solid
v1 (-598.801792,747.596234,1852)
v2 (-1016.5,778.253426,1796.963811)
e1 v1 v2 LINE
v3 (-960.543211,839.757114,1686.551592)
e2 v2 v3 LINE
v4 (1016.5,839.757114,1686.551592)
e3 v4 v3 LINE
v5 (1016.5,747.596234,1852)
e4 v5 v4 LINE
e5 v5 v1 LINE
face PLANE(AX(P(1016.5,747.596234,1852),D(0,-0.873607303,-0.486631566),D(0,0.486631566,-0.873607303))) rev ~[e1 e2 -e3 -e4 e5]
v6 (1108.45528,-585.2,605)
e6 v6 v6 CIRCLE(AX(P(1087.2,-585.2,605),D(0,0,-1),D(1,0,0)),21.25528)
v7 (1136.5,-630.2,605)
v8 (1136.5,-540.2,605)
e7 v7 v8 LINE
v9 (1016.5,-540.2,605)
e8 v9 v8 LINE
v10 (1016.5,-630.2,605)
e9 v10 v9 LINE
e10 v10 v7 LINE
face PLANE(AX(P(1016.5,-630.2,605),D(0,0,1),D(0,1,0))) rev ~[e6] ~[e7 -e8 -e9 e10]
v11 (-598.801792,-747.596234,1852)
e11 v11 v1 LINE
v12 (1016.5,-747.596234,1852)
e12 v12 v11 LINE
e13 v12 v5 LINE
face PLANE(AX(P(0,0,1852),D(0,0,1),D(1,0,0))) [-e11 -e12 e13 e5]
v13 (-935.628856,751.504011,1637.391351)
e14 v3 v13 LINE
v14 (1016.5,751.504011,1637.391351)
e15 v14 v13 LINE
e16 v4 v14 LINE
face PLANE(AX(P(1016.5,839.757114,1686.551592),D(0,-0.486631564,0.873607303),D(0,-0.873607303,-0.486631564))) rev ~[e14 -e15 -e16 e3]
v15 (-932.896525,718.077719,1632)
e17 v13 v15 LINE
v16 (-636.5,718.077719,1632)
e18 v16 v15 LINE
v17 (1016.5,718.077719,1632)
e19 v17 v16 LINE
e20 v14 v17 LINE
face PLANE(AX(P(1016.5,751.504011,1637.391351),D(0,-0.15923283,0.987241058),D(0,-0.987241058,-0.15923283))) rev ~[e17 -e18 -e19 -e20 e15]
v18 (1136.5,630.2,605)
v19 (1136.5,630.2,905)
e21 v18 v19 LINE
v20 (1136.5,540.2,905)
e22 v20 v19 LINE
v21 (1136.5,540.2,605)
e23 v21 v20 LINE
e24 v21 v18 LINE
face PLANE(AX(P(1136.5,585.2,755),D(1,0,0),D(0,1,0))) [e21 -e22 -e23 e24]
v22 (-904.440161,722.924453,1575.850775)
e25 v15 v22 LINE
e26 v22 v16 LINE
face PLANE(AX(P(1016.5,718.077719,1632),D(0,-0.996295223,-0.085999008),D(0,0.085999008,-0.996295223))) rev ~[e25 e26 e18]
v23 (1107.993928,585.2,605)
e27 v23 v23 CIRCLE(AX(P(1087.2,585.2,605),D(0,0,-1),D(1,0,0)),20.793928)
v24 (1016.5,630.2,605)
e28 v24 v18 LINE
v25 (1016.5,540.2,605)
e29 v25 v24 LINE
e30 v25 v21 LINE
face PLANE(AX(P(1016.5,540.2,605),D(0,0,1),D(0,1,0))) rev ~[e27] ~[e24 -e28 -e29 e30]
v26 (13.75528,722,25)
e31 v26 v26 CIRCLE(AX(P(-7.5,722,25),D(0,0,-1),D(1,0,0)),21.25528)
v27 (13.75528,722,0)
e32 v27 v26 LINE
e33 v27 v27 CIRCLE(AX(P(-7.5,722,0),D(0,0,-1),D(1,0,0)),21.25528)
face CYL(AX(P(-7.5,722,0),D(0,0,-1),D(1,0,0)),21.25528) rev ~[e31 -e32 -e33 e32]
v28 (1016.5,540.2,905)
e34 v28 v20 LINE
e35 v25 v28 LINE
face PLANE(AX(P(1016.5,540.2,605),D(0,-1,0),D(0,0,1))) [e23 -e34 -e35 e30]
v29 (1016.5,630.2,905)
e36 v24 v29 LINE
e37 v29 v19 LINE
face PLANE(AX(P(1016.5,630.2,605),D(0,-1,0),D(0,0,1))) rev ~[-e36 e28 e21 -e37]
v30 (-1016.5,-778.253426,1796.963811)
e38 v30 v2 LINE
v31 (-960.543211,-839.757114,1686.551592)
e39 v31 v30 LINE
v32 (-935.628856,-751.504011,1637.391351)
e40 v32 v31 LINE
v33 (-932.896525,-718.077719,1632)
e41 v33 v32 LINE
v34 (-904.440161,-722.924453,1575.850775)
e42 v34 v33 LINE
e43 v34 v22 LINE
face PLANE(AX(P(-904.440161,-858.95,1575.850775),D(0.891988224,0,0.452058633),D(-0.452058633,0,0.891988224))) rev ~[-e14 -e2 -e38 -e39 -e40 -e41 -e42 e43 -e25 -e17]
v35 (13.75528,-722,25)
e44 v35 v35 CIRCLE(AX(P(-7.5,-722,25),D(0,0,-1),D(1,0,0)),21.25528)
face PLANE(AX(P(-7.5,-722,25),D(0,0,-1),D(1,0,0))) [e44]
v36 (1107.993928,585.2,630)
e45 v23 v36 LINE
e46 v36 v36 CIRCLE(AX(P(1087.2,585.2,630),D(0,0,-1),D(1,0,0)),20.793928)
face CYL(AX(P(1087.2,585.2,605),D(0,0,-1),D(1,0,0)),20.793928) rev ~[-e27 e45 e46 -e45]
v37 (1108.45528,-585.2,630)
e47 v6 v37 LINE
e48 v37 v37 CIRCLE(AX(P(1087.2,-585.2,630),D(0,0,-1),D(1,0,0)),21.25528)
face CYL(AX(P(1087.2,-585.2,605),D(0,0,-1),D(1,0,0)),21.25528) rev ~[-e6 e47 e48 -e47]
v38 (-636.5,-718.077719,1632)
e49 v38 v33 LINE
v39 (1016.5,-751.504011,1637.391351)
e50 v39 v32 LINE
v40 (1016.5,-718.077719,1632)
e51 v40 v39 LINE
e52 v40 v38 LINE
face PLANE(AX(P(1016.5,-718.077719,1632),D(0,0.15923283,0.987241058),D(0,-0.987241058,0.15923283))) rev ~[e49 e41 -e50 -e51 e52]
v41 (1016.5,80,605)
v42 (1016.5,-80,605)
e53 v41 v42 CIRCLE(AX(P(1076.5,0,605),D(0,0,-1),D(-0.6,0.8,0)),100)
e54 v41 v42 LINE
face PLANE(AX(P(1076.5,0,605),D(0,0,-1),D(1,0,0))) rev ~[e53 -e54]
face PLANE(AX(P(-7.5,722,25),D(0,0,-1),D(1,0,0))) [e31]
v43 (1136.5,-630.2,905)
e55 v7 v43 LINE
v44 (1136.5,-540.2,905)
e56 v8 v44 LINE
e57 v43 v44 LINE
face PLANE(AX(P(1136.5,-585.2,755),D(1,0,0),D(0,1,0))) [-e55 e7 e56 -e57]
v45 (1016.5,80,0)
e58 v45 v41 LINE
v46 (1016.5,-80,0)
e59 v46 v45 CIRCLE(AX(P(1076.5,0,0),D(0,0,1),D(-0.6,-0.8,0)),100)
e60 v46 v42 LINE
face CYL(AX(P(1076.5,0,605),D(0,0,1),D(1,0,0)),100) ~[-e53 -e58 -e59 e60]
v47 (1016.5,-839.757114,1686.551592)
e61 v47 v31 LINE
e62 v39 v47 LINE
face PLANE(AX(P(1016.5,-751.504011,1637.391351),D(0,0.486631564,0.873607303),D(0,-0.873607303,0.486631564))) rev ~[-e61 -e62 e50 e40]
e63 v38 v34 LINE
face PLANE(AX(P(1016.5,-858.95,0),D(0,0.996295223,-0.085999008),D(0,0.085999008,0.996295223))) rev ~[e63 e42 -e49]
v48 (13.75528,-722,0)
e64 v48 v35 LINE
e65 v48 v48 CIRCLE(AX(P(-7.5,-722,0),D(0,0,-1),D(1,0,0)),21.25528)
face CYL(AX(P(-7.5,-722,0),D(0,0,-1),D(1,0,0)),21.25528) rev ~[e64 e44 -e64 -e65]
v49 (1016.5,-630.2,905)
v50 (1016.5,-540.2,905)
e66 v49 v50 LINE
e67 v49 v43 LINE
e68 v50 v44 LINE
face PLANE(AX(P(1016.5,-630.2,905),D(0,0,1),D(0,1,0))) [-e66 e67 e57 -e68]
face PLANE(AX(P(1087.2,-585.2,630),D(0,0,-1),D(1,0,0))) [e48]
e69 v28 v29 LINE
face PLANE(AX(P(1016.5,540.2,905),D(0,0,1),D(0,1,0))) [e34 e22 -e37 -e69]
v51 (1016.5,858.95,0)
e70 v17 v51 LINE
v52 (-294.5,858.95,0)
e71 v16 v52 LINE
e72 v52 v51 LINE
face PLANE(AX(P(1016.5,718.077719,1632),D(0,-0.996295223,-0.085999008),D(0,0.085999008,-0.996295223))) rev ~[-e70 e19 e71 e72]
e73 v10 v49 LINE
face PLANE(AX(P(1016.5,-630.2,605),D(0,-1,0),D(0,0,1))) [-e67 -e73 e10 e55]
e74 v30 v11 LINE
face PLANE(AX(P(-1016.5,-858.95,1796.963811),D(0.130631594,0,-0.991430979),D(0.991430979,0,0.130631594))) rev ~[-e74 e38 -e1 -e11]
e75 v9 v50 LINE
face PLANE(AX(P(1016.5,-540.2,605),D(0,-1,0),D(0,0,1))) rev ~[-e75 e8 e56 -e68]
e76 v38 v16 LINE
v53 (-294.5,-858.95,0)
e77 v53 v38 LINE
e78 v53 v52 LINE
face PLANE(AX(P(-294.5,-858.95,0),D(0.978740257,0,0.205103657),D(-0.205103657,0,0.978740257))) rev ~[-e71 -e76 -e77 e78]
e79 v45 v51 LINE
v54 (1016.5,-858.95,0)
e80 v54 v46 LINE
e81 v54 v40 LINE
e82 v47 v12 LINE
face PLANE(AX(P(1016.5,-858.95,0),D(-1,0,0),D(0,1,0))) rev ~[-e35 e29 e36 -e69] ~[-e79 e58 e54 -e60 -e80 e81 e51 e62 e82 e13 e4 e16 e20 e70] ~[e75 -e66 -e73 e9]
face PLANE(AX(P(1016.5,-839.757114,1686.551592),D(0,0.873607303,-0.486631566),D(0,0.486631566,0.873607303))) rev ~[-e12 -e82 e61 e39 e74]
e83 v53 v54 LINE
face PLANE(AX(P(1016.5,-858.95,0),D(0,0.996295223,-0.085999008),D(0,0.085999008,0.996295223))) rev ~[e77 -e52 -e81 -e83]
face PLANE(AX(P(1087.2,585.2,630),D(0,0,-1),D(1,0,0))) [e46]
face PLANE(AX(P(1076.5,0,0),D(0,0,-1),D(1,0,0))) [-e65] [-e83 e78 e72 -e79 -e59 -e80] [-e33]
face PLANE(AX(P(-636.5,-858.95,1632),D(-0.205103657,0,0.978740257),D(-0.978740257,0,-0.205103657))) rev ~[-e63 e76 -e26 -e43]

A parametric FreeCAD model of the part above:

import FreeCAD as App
import Part
import Sketcher
from FreeCAD import Vector
Q = App.Units.Quantity


def add_polygon(sketch, points):
    """Adds a closed chain of lines whose ends are joined by coincident constraints."""
    first, n = sketch.GeometryCount, len(points)
    for a, b in zip(points, points[1:] + points[:1]):
        sketch.addGeometry(Part.LineSegment(App.Vector(*a, 0), App.Vector(*b, 0)), False)
    for i in range(n):
        sketch.addConstraint(Sketcher.Constraint("Coincident", first + i, 2, first + (i + 1) % n, 1))

doc = App.newDocument("Part")
body = doc.addObject("PartDesign::Body", "Body")

# Sketch on XY plane
sketch1 = doc.addObject("Sketcher::SketchObject", "Sketch")
body.addObject(sketch1)
sketch1.AttachmentSupport = (doc.XY_Plane, [""])
sketch1.MapMode = "FlatFace"
add_polygon(sketch1, [(-1016.5, 858.95), (-1016.5, -858.95), (1016.5, -858.95), (1016.5, 858.95)])  # lines 0-3
sketch1.addConstraint(Sketcher.Constraint("Vertical", 0))
sketch1.addConstraint(Sketcher.Constraint("Horizontal", 1))
sketch1.addConstraint(Sketcher.Constraint("Vertical", 2))
sketch1.addConstraint(Sketcher.Constraint("Horizontal", 3))
sketch1.addConstraint(Sketcher.Constraint("Symmetric", 0, 2, 2, 2, -1, 1))
sketch1.addConstraint(Sketcher.Constraint("DistanceX", 1, 1, 1, 2, Q("2033 mm")))
sketch1.addConstraint(Sketcher.Constraint("DistanceY", 0, 2, 0, 1, Q("1717.9 mm")))
pad1 = doc.addObject("PartDesign::Pad", "Pad")
body.addObject(pad1)
pad1.Profile = sketch1
pad1.Length = 1852

# Sketch on XZ plane
sketch2 = doc.addObject("Sketcher::SketchObject", "Sketch001")
body.addObject(sketch2)
sketch2.AttachmentSupport = (doc.XZ_Plane, [""])
sketch2.MapMode = "FlatFace"
sketch2.AttachmentOffset = App.Placement(Vector(0, 0, 858.95), App.Rotation())
add_polygon(sketch2, [(-1016.5, 0), (-294.5, 0), (-636.5, 1632), (-904.440161, 1575.850775), (-1016.5, 1796.963811)])  # lines 0-4
add_polygon(sketch2, [(-1016.5, 1852), (-1016.5, 1796.963811), (-598.801792, 1852)])  # lines 5-7
sketch2.addConstraint(Sketcher.Constraint("Horizontal", 0))
sketch2.addConstraint(Sketcher.Constraint("Vertical", 4))
sketch2.addConstraint(Sketcher.Constraint("Vertical", 5))
sketch2.addConstraint(Sketcher.Constraint("Horizontal", 7))
sketch2.addConstraint(Sketcher.Constraint("Coincident", 5, 2, 3, 2))
sketch2.addConstraint(Sketcher.Constraint("PointOnObject", 0, 2, -1))
sketch2.addConstraint(Sketcher.Constraint("Perpendicular", 1, 2))
sketch2.addConstraint(Sketcher.Constraint("DistanceX", 0, 1, 0, 2, Q("722 mm")))
sketch2.addConstraint(Sketcher.Constraint("DistanceY", -1, 1, 1, 2, Q("1632 mm")))
sketch2.addConstraint(Sketcher.Constraint("DistanceY", -1, 1, 6, 2, Q("1852 mm")))
sketch2.addConstraint(Sketcher.Constraint("DistanceX", 1, 2, 0, 2, Q("342 mm")))
sketch2.addConstraint(Sketcher.Constraint("DistanceX", 0, 2, -1, 1, Q("294.5 mm")))
sketch2.addConstraint(Sketcher.Constraint("DistanceX", 7, 2, 7, 1, Q("417.698208 mm")))
sketch2.addConstraint(Sketcher.Constraint("DistanceY", 4, 2, 4, 1, Q("1796.963811 mm")))
sketch2.addConstraint(Sketcher.Constraint("Distance", 3, Q("247.887842 mm")))
pocket1 = doc.addObject("PartDesign::Pocket", "Pocket")
body.addObject(pocket1)
pocket1.Profile = sketch2
pocket1.Type = "ThroughAll"

# Sketch on YZ plane
sketch3 = doc.addObject("Sketcher::SketchObject", "Sketch002")
body.addObject(sketch3)
sketch3.AttachmentSupport = (doc.YZ_Plane, [""])
sketch3.MapMode = "FlatFace"
sketch3.AttachmentOffset = App.Placement(Vector(0, 0, 1016.5), App.Rotation())
add_polygon(sketch3, [(-858.95, 1852), (-858.95, 0), (-718.077719, 1632), (-751.504011, 1637.391351), (-839.757114, 1686.551592), (-747.596234, 1852)])  # lines 0-5
add_polygon(sketch3, [(718.077719, 1632), (858.95, 0), (858.95, 1852), (747.596234, 1852), (839.757114, 1686.551592), (751.504011, 1637.391351)])  # lines 6-11
sketch3.addConstraint(Sketcher.Constraint("Vertical", 0))
sketch3.addConstraint(Sketcher.Constraint("Horizontal", 5))
sketch3.addConstraint(Sketcher.Constraint("Vertical", 7))
sketch3.addConstraint(Sketcher.Constraint("Horizontal", 8))
sketch3.addConstraint(Sketcher.Constraint("Symmetric", 0, 2, 6, 2, -1, 1))
sketch3.addConstraint(Sketcher.Constraint("Symmetric", 4, 2, 8, 2, -2))
sketch3.addConstraint(Sketcher.Constraint("Symmetric", 3, 2, 9, 2, -2))
sketch3.addConstraint(Sketcher.Constraint("Symmetric", 2, 2, 10, 2, -2))
sketch3.addConstraint(Sketcher.Constraint("Symmetric", 1, 2, 11, 2, -2))
sketch3.addConstraint(Sketcher.Constraint("PointOnObject", 0, 2, -1))
sketch3.addConstraint(Sketcher.Constraint("Perpendicular", 3, 4))
sketch3.addConstraint(Sketcher.Constraint("DistanceY", 0, 2, 0, 1, Q("1852 mm")))
sketch3.addConstraint(Sketcher.Constraint("DistanceY", -1, 1, 1, 2, Q("1632 mm")))
sketch3.addConstraint(Sketcher.Constraint("DistanceX", 0, 2, 6, 2, Q("1717.9 mm")))
sketch3.addConstraint(Sketcher.Constraint("Distance", 1, Q("1638.06868 mm")))
sketch3.addConstraint(Sketcher.Constraint("Distance", 3, Q("101.02148 mm")))
sketch3.addConstraint(Sketcher.Constraint("Distance", 4, Q("189.385331 mm")))
sketch3.addConstraint(Sketcher.Constraint("DistanceX", 5, 2, 5, 1, Q("111.353766 mm")))
sketch3.addConstraint(Sketcher.Constraint("DistanceX", 2, 2, -1, 1, Q("751.504011 mm")))
pocket2 = doc.addObject("PartDesign::Pocket", "Pocket001")
body.addObject(pocket2)
pocket2.Profile = sketch3
pocket2.Type = "ThroughAll"

# Sketch on YZ plane
sketch4 = doc.addObject("Sketcher::SketchObject", "Sketch003")
body.addObject(sketch4)
sketch4.AttachmentSupport = (doc.YZ_Plane, [""])
sketch4.MapMode = "FlatFace"
sketch4.AttachmentOffset = App.Placement(Vector(0, 0, 1016.5), App.Rotation())
add_polygon(sketch4, [(-630.2, 905), (-630.2, 605), (-540.2, 605), (-540.2, 905)])  # lines 0-3
add_polygon(sketch4, [(540.2, 905), (540.2, 605), (630.2, 605), (630.2, 905)])  # lines 4-7
sketch4.addConstraint(Sketcher.Constraint("Vertical", 0))
sketch4.addConstraint(Sketcher.Constraint("Horizontal", 1))
sketch4.addConstraint(Sketcher.Constraint("Vertical", 2))
sketch4.addConstraint(Sketcher.Constraint("Horizontal", 3))
sketch4.addConstraint(Sketcher.Constraint("Vertical", 4))
sketch4.addConstraint(Sketcher.Constraint("Horizontal", 5))
sketch4.addConstraint(Sketcher.Constraint("Vertical", 6))
sketch4.addConstraint(Sketcher.Constraint("Horizontal", 7))
sketch4.addConstraint(Sketcher.Constraint("Symmetric", 1, 2, 4, 2, -2))
sketch4.addConstraint(Sketcher.Constraint("Symmetric", 3, 2, 6, 2, -2))
sketch4.addConstraint(Sketcher.Constraint("DistanceX", 1, 1, 1, 2, Q("90 mm")))
sketch4.addConstraint(Sketcher.Constraint("DistanceY", 0, 2, 0, 1, Q("300 mm")))
sketch4.addConstraint(Sketcher.Constraint("DistanceY", -1, 1, 0, 2, Q("605 mm")))
sketch4.addConstraint(Sketcher.Constraint("DistanceX", 0, 2, -1, 1, Q("630.2 mm")))
pad2 = doc.addObject("PartDesign::Pad", "Pad001")
body.addObject(pad2)
pad2.Profile = sketch4
pad2.Length = 120

# Sketch on XY plane
sketch5 = doc.addObject("Sketcher::SketchObject", "Sketch004")
body.addObject(sketch5)
sketch5.AttachmentSupport = (doc.XY_Plane, [""])
sketch5.MapMode = "FlatFace"
sketch5.AttachmentOffset = App.Placement(Vector(0, 0, 605), App.Rotation())
sketch5.addGeometry(Part.Circle(Vector(1087.2, 585.2, 0), Vector(0, 0, 1), 20.793928), False)
sketch5.addGeometry(Part.Circle(Vector(1087.2, -585.2, 0), Vector(0, 0, 1), 21.25528), False)
sketch5.addConstraint(Sketcher.Constraint("Symmetric", 0, 3, 1, 3, -1))
sketch5.addConstraint(Sketcher.Constraint("DistanceX", -1, 1, 0, 3, Q("1087.2 mm")))
sketch5.addConstraint(Sketcher.Constraint("DistanceY", -1, 1, 0, 3, Q("585.2 mm")))
sketch5.addConstraint(Sketcher.Constraint("Diameter", 1, Q("42.51056 mm")))
sketch5.addConstraint(Sketcher.Constraint("Diameter", 0, Q("41.587856 mm")))
pocket3 = doc.addObject("PartDesign::Pocket", "Pocket002")
body.addObject(pocket3)
pocket3.Profile = sketch5
pocket3.Length = 25
pocket3.Reversed = True

# Sketch on XY plane
sketch6 = doc.addObject("Sketcher::SketchObject", "Sketch005")
body.addObject(sketch6)
sketch6.AttachmentSupport = (doc.XY_Plane, [""])
sketch6.MapMode = "FlatFace"
sketch6.addGeometry(Part.Circle(Vector(-7.5, -722, 0), Vector(0, 0, 1), 21.25528), False)
sketch6.addGeometry(Part.Circle(Vector(-7.5, 722, 0), Vector(0, 0, 1), 21.25528), False)
sketch6.addConstraint(Sketcher.Constraint("Equal", 0, 1))
sketch6.addConstraint(Sketcher.Constraint("Symmetric", 0, 3, 1, 3, -1))
sketch6.addConstraint(Sketcher.Constraint("DistanceY", 0, 3, -1, 1, Q("722 mm")))
sketch6.addConstraint(Sketcher.Constraint("DistanceX", 0, 3, -1, 1, Q("7.5 mm")))
sketch6.addConstraint(Sketcher.Constraint("Diameter", 0, Q("42.51056 mm")))
pocket4 = doc.addObject("PartDesign::Pocket", "Pocket003")
body.addObject(pocket4)
pocket4.Profile = sketch6
pocket4.Length = 25
pocket4.Reversed = True

# Sketch on XY plane
sketch7 = doc.addObject("Sketcher::SketchObject", "Sketch006")
body.addObject(sketch7)
sketch7.AttachmentSupport = (doc.XY_Plane, [""])
sketch7.MapMode = "FlatFace"
sketch7.AttachmentOffset = App.Placement(Vector(0, 0, 605), App.Rotation())
sketch7.addGeometry(Part.Circle(Vector(1076.5, 0, 0), Vector(0, 0, 1), 100), False)
sketch7.addConstraint(Sketcher.Constraint("PointOnObject", 0, 3, -1))
sketch7.addConstraint(Sketcher.Constraint("Diameter", 0, Q("200 mm")))
sketch7.addConstraint(Sketcher.Constraint("DistanceX", -1, 1, 0, 3, Q("1076.5 mm")))
pad3 = doc.addObject("PartDesign::Pad", "Pad002")
body.addObject(pad3)
pad3.Profile = sketch7
pad3.Length = 605
pad3.Reversed = True

doc.recompute()
